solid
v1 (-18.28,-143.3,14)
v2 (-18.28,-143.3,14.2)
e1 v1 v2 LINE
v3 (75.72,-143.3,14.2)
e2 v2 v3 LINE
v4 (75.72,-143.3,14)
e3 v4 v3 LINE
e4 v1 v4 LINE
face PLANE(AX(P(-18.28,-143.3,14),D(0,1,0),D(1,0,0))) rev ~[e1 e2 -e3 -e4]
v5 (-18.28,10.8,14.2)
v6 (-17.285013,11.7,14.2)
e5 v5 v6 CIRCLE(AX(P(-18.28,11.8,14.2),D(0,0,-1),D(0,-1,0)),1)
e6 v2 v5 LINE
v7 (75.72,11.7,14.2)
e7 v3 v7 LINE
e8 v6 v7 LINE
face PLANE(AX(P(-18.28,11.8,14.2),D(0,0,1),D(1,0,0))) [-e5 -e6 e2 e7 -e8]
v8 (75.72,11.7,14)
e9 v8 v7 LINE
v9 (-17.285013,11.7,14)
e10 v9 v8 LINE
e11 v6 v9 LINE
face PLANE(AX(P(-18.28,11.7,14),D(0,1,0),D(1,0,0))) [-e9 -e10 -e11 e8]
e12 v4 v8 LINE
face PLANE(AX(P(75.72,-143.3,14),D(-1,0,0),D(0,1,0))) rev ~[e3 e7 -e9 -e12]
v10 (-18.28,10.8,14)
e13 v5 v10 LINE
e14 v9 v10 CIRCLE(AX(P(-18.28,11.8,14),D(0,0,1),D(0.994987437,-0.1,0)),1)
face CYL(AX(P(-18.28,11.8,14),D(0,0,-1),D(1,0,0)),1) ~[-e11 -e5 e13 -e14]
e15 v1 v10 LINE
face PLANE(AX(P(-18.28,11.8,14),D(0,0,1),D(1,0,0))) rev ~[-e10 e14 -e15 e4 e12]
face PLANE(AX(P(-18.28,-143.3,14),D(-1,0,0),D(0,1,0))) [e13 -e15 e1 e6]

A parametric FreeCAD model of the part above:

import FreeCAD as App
import Part
import Sketcher


def add_polygon(sketch, points):
    """Adds a closed chain of lines whose ends are joined by coincident constraints."""
    first, n = sketch.GeometryCount, len(points)
    for a, b in zip(points, points[1:] + points[:1]):
        sketch.addGeometry(Part.LineSegment(App.Vector(*a, 0), App.Vector(*b, 0)), False)
    for i in range(n):
        sketch.addConstraint(Sketcher.Constraint("Coincident", first + i, 2, first + (i + 1) % n, 1))

doc = App.newDocument("Part")
body = doc.addObject("PartDesign::Body", "Body")

# Sketch on XY plane
sketch1 = doc.addObject("Sketcher::SketchObject", "Sketch")
body.addObject(sketch1)
sketch1.AttachmentSupport = (doc.XY_Plane, [""])
sketch1.MapMode = "FlatFace"
sketch1.AttachmentOffset = App.Placement(App.Vector(0, 0, 14), App.Rotation())
sketch1.addGeometry(Part.Circle(App.Vector(-18.28, 11.8, 0), App.Vector(0, 0, 1), 1), False)
sketch1.addConstraint(Sketcher.Constraint("Diameter", 0, 2.0))
sketch1.addConstraint(Sketcher.Constraint("DistanceY", -1, 1, 0, 3, 11.8))
sketch1.addConstraint(Sketcher.Constraint("DistanceX", 0, 3, -1, 1, 18.28))
pad1 = doc.addObject("PartDesign::Pad", "Pad")
body.addObject(pad1)
pad1.Profile = sketch1
pad1.Length = 0.2
body2 = doc.addObject("PartDesign::Body", "Body001")

# Sketch on XY plane
sketch2 = doc.addObject("Sketcher::SketchObject", "Sketch001")
body2.addObject(sketch2)
sketch2.AttachmentSupport = (doc.getObject("XY_Plane001"), [""])
sketch2.MapMode = "FlatFace"
sketch2.AttachmentOffset = App.Placement(App.Vector(0, 0, 14), App.Rotation())
add_polygon(sketch2, [(-18.28, 11.7), (-18.28, -143.3), (75.72, -143.3), (75.72, 11.7)])  # lines 0-3
sketch2.addConstraint(Sketcher.Constraint("Vertical", 0))
sketch2.addConstraint(Sketcher.Constraint("Horizontal", 1))
sketch2.addConstraint(Sketcher.Constraint("Vertical", 2))
sketch2.addConstraint(Sketcher.Constraint("Horizontal", 3))
sketch2.addConstraint(Sketcher.Constraint("DistanceX", 1, 1, 1, 2, 94.0))
sketch2.addConstraint(Sketcher.Constraint("DistanceY", 0, 2, 0, 1, 155.0))
sketch2.addConstraint(Sketcher.Constraint("DistanceY", 0, 2, -1, 1, 143.3))
sketch2.addConstraint(Sketcher.Constraint("DistanceX", 0, 2, -1, 1, 18.28))
pad2 = doc.addObject("PartDesign::Pad", "Pad001")
body2.addObject(pad2)
pad2.Profile = sketch2
pad2.Length = 0.2
doc.recompute()

boolean = doc.addObject("PartDesign::Boolean", "Boolean")
body2.addObject(boolean)
boolean.Type = "Fuse"
boolean.addObjects([body])

doc.recompute()
